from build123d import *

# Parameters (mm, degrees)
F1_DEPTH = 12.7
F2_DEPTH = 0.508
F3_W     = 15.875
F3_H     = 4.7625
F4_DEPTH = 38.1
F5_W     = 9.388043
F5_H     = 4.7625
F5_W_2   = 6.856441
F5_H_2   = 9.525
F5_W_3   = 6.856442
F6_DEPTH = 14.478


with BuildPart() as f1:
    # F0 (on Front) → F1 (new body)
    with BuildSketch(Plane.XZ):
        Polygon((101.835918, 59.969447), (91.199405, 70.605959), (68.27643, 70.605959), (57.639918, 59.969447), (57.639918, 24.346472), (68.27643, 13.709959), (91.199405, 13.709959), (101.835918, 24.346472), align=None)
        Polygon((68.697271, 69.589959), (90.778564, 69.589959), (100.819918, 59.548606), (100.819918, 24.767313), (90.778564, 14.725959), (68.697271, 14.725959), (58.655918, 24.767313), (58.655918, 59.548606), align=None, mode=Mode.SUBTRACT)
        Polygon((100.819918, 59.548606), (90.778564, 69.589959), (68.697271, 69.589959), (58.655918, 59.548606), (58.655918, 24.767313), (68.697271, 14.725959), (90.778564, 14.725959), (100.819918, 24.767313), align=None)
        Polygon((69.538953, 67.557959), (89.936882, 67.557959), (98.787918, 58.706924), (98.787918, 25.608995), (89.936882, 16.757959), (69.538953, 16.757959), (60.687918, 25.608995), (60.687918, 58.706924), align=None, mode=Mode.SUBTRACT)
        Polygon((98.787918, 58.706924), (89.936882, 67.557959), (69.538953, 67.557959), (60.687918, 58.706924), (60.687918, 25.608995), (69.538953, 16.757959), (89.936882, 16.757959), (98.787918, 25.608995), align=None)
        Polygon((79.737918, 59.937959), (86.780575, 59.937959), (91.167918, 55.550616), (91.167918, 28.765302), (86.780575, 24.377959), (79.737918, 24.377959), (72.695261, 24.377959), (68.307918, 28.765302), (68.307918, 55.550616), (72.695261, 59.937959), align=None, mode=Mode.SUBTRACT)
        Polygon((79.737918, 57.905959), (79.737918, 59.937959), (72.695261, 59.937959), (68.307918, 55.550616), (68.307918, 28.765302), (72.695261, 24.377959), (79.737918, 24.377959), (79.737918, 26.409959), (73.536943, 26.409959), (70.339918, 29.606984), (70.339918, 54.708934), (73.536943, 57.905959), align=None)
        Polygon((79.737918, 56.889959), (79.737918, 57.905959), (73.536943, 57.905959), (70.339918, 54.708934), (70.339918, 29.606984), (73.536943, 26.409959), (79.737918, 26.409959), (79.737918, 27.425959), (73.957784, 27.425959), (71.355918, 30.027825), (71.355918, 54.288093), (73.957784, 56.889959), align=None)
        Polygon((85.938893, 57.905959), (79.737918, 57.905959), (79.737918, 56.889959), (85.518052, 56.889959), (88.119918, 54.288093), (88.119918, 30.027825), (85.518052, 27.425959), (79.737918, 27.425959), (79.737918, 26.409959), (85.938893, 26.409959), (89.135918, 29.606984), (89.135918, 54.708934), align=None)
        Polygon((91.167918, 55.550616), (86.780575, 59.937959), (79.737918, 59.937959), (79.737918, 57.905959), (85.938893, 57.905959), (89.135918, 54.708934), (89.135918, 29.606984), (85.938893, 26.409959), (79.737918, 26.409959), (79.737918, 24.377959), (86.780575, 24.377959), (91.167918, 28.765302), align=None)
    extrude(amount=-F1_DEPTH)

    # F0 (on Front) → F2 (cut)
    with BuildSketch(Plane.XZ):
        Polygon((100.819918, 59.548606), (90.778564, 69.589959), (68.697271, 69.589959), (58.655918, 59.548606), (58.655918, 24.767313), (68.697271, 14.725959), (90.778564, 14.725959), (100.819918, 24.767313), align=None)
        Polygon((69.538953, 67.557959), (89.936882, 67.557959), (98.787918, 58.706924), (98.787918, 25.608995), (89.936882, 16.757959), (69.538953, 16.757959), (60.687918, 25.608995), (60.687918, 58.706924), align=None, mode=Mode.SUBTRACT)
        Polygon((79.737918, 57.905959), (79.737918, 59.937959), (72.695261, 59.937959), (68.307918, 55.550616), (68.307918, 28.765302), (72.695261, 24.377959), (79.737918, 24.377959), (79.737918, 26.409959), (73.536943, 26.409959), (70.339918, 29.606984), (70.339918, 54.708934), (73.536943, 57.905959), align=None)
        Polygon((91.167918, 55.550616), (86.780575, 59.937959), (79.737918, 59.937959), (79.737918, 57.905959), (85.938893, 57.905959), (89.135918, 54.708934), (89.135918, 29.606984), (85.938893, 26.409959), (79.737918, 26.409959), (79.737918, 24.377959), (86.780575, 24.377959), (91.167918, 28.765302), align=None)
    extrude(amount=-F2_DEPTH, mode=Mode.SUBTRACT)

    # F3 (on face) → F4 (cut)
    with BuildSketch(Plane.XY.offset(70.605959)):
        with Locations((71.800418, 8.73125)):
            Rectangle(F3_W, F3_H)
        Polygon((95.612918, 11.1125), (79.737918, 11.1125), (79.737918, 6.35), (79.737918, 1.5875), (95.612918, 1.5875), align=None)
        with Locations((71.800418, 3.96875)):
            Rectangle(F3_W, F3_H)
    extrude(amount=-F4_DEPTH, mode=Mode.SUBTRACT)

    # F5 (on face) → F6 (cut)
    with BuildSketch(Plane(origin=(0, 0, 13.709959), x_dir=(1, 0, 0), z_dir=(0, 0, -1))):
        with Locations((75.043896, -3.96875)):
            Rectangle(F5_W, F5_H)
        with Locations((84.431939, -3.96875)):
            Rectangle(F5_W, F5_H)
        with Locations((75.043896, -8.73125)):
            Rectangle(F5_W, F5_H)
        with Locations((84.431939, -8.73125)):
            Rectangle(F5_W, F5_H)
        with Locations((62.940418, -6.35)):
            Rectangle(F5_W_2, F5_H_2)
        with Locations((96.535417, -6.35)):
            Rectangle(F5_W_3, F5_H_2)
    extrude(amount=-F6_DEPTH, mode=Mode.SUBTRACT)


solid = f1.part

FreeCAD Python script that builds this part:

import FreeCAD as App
import Part
import Sketcher

V = App.Vector
Q = App.Units.Quantity

doc = App.newDocument("Part")
body = doc.addObject("PartDesign::Body", "Body")

sketch1 = body.newObject("Sketcher::SketchObject", "Sketch")
sketch1.AttachmentSupport = (doc.getObject("XZ_Plane"), [""])
sketch1.MapMode = "FlatFace"
sketch1.addGeometry(Part.LineSegment(V(101.8, 60, 0), V(91.2, 70.6, 0)), False)
sketch1.addGeometry(Part.LineSegment(V(91.2, 70.6, 0), V(68.3, 70.6, 0)), False)
sketch1.addGeometry(Part.LineSegment(V(68.3, 70.6, 0), V(57.6, 60, 0)), False)
sketch1.addGeometry(Part.LineSegment(V(57.6, 60, 0), V(57.6, 24.3, 0)), False)
sketch1.addGeometry(Part.LineSegment(V(57.6, 24.3, 0), V(68.3, 13.7, 0)), False)
sketch1.addGeometry(Part.LineSegment(V(68.3, 13.7, 0), V(91.2, 13.7, 0)), False)
sketch1.addGeometry(Part.LineSegment(V(91.2, 13.7, 0), V(101.8, 24.3, 0)), False)
sketch1.addGeometry(Part.LineSegment(V(101.8, 24.3, 0), V(101.8, 60, 0)), False)
sketch1.addGeometry(Part.LineSegment(V(74, 27.4, 0), V(71.4, 30, 0)), False)
sketch1.addGeometry(Part.LineSegment(V(71.4, 30, 0), V(71.4, 54.3, 0)), False)
sketch1.addGeometry(Part.LineSegment(V(71.4, 54.3, 0), V(74, 56.9, 0)), False)
sketch1.addGeometry(Part.LineSegment(V(74, 56.9, 0), V(85.5, 56.9, 0)), False)
sketch1.addGeometry(Part.LineSegment(V(85.5, 56.9, 0), V(88.1, 54.3, 0)), False)
sketch1.addGeometry(Part.LineSegment(V(88.1, 54.3, 0), V(88.1, 30, 0)), False)
sketch1.addGeometry(Part.LineSegment(V(88.1, 30, 0), V(85.5, 27.4, 0)), False)
sketch1.addGeometry(Part.LineSegment(V(85.5, 27.4, 0), V(74, 27.4, 0)), False)
sketch1.addConstraint(Sketcher.Constraint("Coincident", 0, 2, 1, 1))
sketch1.addConstraint(Sketcher.Constraint("Coincident", 1, 2, 2, 1))
sketch1.addConstraint(Sketcher.Constraint("Coincident", 2, 2, 3, 1))
sketch1.addConstraint(Sketcher.Constraint("Coincident", 3, 2, 4, 1))
sketch1.addConstraint(Sketcher.Constraint("Coincident", 4, 2, 5, 1))
sketch1.addConstraint(Sketcher.Constraint("Coincident", 5, 2, 6, 1))
sketch1.addConstraint(Sketcher.Constraint("Coincident", 6, 2, 7, 1))
sketch1.addConstraint(Sketcher.Constraint("Coincident", 7, 2, 0, 1))
sketch1.addConstraint(Sketcher.Constraint("Coincident", 8, 2, 9, 1))
sketch1.addConstraint(Sketcher.Constraint("Coincident", 9, 2, 10, 1))
sketch1.addConstraint(Sketcher.Constraint("Coincident", 10, 2, 11, 1))
sketch1.addConstraint(Sketcher.Constraint("Coincident", 11, 2, 12, 1))
sketch1.addConstraint(Sketcher.Constraint("Coincident", 12, 2, 13, 1))
sketch1.addConstraint(Sketcher.Constraint("Coincident", 13, 2, 14, 1))
sketch1.addConstraint(Sketcher.Constraint("Coincident", 14, 2, 15, 1))
sketch1.addConstraint(Sketcher.Constraint("Coincident", 15, 2, 8, 1))
sketch1.addConstraint(Sketcher.Constraint("Horizontal", 1))
sketch1.addConstraint(Sketcher.Constraint("Vertical", 3))
sketch1.addConstraint(Sketcher.Constraint("Horizontal", 5))
sketch1.addConstraint(Sketcher.Constraint("Vertical", 7))
sketch1.addConstraint(Sketcher.Constraint("Vertical", 9))
sketch1.addConstraint(Sketcher.Constraint("Horizontal", 11))
sketch1.addConstraint(Sketcher.Constraint("Vertical", 13))
sketch1.addConstraint(Sketcher.Constraint("Horizontal", 15))
sketch1.addConstraint(Sketcher.Constraint("Perpendicular", 0, 2))
sketch1.addConstraint(Sketcher.Constraint("Perpendicular", 2, 4))
sketch1.addConstraint(Sketcher.Constraint("Perpendicular", 4, 6))
sketch1.addConstraint(Sketcher.Constraint("Perpendicular", 6, 8))
sketch1.addConstraint(Sketcher.Constraint("Perpendicular", 8, 10))
sketch1.addConstraint(Sketcher.Constraint("Perpendicular", 10, 12))
sketch1.addConstraint(Sketcher.Constraint("Perpendicular", 12, 14))
sketch1.addConstraint(Sketcher.Constraint("Horizontal", 3, 2, 6, 2))
sketch1.addConstraint(Sketcher.Constraint("Horizontal", 2, 2, 7, 2))
sketch1.addConstraint(Sketcher.Constraint("Horizontal", 9, 2, 12, 2))
sketch1.addConstraint(Sketcher.Constraint("Horizontal", 8, 2, 13, 2))
sketch1.addConstraint(Sketcher.Constraint("Vertical", 1, 2, 4, 2))
sketch1.addConstraint(Sketcher.Constraint("Vertical", 0, 2, 5, 2))
sketch1.addConstraint(Sketcher.Constraint("Vertical", 11, 2, 14, 2))
sketch1.addConstraint(Sketcher.Constraint("DistanceX", 8, 2, 6, 2, Q("1.2 in")))
sketch1.addConstraint(Sketcher.Constraint("DistanceY", 4, 2, 1, 2, Q("2.24 in")))
sketch1.addConstraint(Sketcher.Constraint("DistanceX", 3, 2, 6, 2, Q("1.74 in")))
sketch1.addConstraint(Sketcher.Constraint("DistanceY", 10, 2, 1, 2, Q("0.54 in")))
sketch1.addConstraint(Sketcher.Constraint("DistanceX", 12, 2, 7, 2, Q("0.54 in")))
sketch1.addConstraint(Sketcher.Constraint("DistanceY", 5, 2, 14, 2, Q("0.54 in")))
sketch1.addConstraint(Sketcher.Constraint("Distance", 0, 15.0423))
sketch1.addConstraint(Sketcher.Constraint("DistanceY", 9, 1, 9, 2, 24.260268))
sketch1.addConstraint(Sketcher.Constraint("DistanceY", -1, 1, 0, 2, 70.605959))
sketch1.addConstraint(Sketcher.Constraint("DistanceX", -1, 1, 1, 2, 68.27643))
pad1 = body.newObject("PartDesign::Pad", "Pad")
pad1.Profile = sketch1
pad1.Length = Q("0.5 in")
pad1.Reversed = True

sketch2 = body.newObject("Sketcher::SketchObject", "Sketch001")
sketch2.AttachmentSupport = (doc.getObject("XZ_Plane"), [""])
sketch2.MapMode = "FlatFace"
sketch2.addGeometry(Part.LineSegment(V(100.8, 59.5, 0), V(90.8, 69.6, 0)), False)
sketch2.addGeometry(Part.LineSegment(V(90.8, 69.6, 0), V(68.7, 69.6, 0)), False)
sketch2.addGeometry(Part.LineSegment(V(68.7, 69.6, 0), V(58.7, 59.5, 0)), False)
sketch2.addGeometry(Part.LineSegment(V(58.7, 59.5, 0), V(58.7, 24.8, 0)), False)
sketch2.addGeometry(Part.LineSegment(V(58.7, 24.8, 0), V(68.7, 14.7, 0)), False)
sketch2.addGeometry(Part.LineSegment(V(68.7, 14.7, 0), V(90.8, 14.7, 0)), False)
sketch2.addGeometry(Part.LineSegment(V(90.8, 14.7, 0), V(100.8, 24.8, 0)), False)
sketch2.addGeometry(Part.LineSegment(V(100.8, 24.8, 0), V(100.8, 59.5, 0)), False)
sketch2.addGeometry(Part.LineSegment(V(60.7, 58.7, 0), V(69.5, 67.6, 0)), False)
sketch2.addGeometry(Part.LineSegment(V(69.5, 67.6, 0), V(89.9, 67.6, 0)), False)
sketch2.addGeometry(Part.LineSegment(V(89.9, 67.6, 0), V(98.8, 58.7, 0)), False)
sketch2.addGeometry(Part.LineSegment(V(98.8, 58.7, 0), V(98.8, 25.6, 0)), False)
sketch2.addGeometry(Part.LineSegment(V(98.8, 25.6, 0), V(89.9, 16.8, 0)), False)
sketch2.addGeometry(Part.LineSegment(V(89.9, 16.8, 0), V(69.5, 16.8, 0)), False)
sketch2.addGeometry(Part.LineSegment(V(69.5, 16.8, 0), V(60.7, 25.6, 0)), False)
sketch2.addGeometry(Part.LineSegment(V(60.7, 25.6, 0), V(60.7, 58.7, 0)), False)
sketch2.addGeometry(Part.LineSegment(V(72.7, 59.9, 0), V(68.3, 55.6, 0)), False)
sketch2.addGeometry(Part.LineSegment(V(68.3, 55.6, 0), V(68.3, 28.8, 0)), False)
sketch2.addGeometry(Part.LineSegment(V(68.3, 28.8, 0), V(72.7, 24.4, 0)), False)
sketch2.addGeometry(Part.LineSegment(V(72.7, 24.4, 0), V(86.8, 24.4, 0)), False)
sketch2.addGeometry(Part.LineSegment(V(86.8, 24.4, 0), V(91.2, 28.8, 0)), False)
sketch2.addGeometry(Part.LineSegment(V(91.2, 28.8, 0), V(91.2, 55.6, 0)), False)
sketch2.addGeometry(Part.LineSegment(V(91.2, 55.6, 0), V(86.8, 59.9, 0)), False)
sketch2.addGeometry(Part.LineSegment(V(86.8, 59.9, 0), V(72.7, 59.9, 0)), False)
sketch2.addGeometry(Part.LineSegment(V(73.5, 26.4, 0), V(70.3, 29.6, 0)), False)
sketch2.addGeometry(Part.LineSegment(V(70.3, 29.6, 0), V(70.3, 54.7, 0)), False)
sketch2.addGeometry(Part.LineSegment(V(70.3, 54.7, 0), V(73.5, 57.9, 0)), False)
sketch2.addGeometry(Part.LineSegment(V(73.5, 57.9, 0), V(85.9, 57.9, 0)), False)
sketch2.addGeometry(Part.LineSegment(V(85.9, 57.9, 0), V(89.1, 54.7, 0)), False)
sketch2.addGeometry(Part.LineSegment(V(89.1, 54.7, 0), V(89.1, 29.6, 0)), False)
sketch2.addGeometry(Part.LineSegment(V(89.1, 29.6, 0), V(85.9, 26.4, 0)), False)
sketch2.addGeometry(Part.LineSegment(V(85.9, 26.4, 0), V(73.5, 26.4, 0)), False)
sketch2.addConstraint(Sketcher.Constraint("Coincident", 0, 2, 1, 1))
sketch2.addConstraint(Sketcher.Constraint("Coincident", 1, 2, 2, 1))
sketch2.addConstraint(Sketcher.Constraint("Coincident", 2, 2, 3, 1))
sketch2.addConstraint(Sketcher.Constraint("Coincident", 3, 2, 4, 1))
sketch2.addConstraint(Sketcher.Constraint("Coincident", 4, 2, 5, 1))
sketch2.addConstraint(Sketcher.Constraint("Coincident", 5, 2, 6, 1))
sketch2.addConstraint(Sketcher.Constraint("Coincident", 6, 2, 7, 1))
sketch2.addConstraint(Sketcher.Constraint("Coincident", 7, 2, 0, 1))
sketch2.addConstraint(Sketcher.Constraint("Coincident", 8, 2, 9, 1))
sketch2.addConstraint(Sketcher.Constraint("Coincident", 9, 2, 10, 1))
sketch2.addConstraint(Sketcher.Constraint("Coincident", 10, 2, 11, 1))
sketch2.addConstraint(Sketcher.Constraint("Coincident", 11, 2, 12, 1))
sketch2.addConstraint(Sketcher.Constraint("Coincident", 12, 2, 13, 1))
sketch2.addConstraint(Sketcher.Constraint("Coincident", 13, 2, 14, 1))
sketch2.addConstraint(Sketcher.Constraint("Coincident", 14, 2, 15, 1))
sketch2.addConstraint(Sketcher.Constraint("Coincident", 15, 2, 8, 1))
sketch2.addConstraint(Sketcher.Constraint("Coincident", 16, 2, 17, 1))
sketch2.addConstraint(Sketcher.Constraint("Coincident", 17, 2, 18, 1))
sketch2.addConstraint(Sketcher.Constraint("Coincident", 18, 2, 19, 1))
sketch2.addConstraint(Sketcher.Constraint("Coincident", 19, 2, 20, 1))
sketch2.addConstraint(Sketcher.Constraint("Coincident", 20, 2, 21, 1))
sketch2.addConstraint(Sketcher.Constraint("Coincident", 21, 2, 22, 1))
sketch2.addConstraint(Sketcher.Constraint("Coincident", 22, 2, 23, 1))
sketch2.addConstraint(Sketcher.Constraint("Coincident", 23, 2, 16, 1))
sketch2.addConstraint(Sketcher.Constraint("Coincident", 24, 2, 25, 1))
sketch2.addConstraint(Sketcher.Constraint("Coincident", 25, 2, 26, 1))
sketch2.addConstraint(Sketcher.Constraint("Coincident", 26, 2, 27, 1))
sketch2.addConstraint(Sketcher.Constraint("Coincident", 27, 2, 28, 1))
sketch2.addConstraint(Sketcher.Constraint("Coincident", 28, 2, 29, 1))
sketch2.addConstraint(Sketcher.Constraint("Coincident", 29, 2, 30, 1))
sketch2.addConstraint(Sketcher.Constraint("Coincident", 30, 2, 31, 1))
sketch2.addConstraint(Sketcher.Constraint("Coincident", 31, 2, 24, 1))
sketch2.addConstraint(Sketcher.Constraint("Horizontal", 1))
sketch2.addConstraint(Sketcher.Constraint("Vertical", 3))
sketch2.addConstraint(Sketcher.Constraint("Horizontal", 5))
sketch2.addConstraint(Sketcher.Constraint("Vertical", 7))
sketch2.addConstraint(Sketcher.Constraint("Horizontal", 9))
sketch2.addConstraint(Sketcher.Constraint("Vertical", 11))
sketch2.addConstraint(Sketcher.Constraint("Horizontal", 13))
sketch2.addConstraint(Sketcher.Constraint("Vertical", 15))
sketch2.addConstraint(Sketcher.Constraint("Vertical", 17))
sketch2.addConstraint(Sketcher.Constraint("Horizontal", 19))
sketch2.addConstraint(Sketcher.Constraint("Vertical", 21))
sketch2.addConstraint(Sketcher.Constraint("Horizontal", 23))
sketch2.addConstraint(Sketcher.Constraint("Vertical", 25))
sketch2.addConstraint(Sketcher.Constraint("Horizontal", 27))
sketch2.addConstraint(Sketcher.Constraint("Vertical", 29))
sketch2.addConstraint(Sketcher.Constraint("Horizontal", 31))
sketch2.addConstraint(Sketcher.Constraint("Perpendicular", 0, 2))
sketch2.addConstraint(Sketcher.Constraint("Perpendicular", 2, 4))
sketch2.addConstraint(Sketcher.Constraint("Perpendicular", 4, 6))
sketch2.addConstraint(Sketcher.Constraint("Parallel", 6, 8))
sketch2.addConstraint(Sketcher.Constraint("Perpendicular", 8, 10))
sketch2.addConstraint(Sketcher.Constraint("Perpendicular", 10, 12))
sketch2.addConstraint(Sketcher.Constraint("Perpendicular", 12, 14))
sketch2.addConstraint(Sketcher.Constraint("Perpendicular", 14, 16))
sketch2.addConstraint(Sketcher.Constraint("Perpendicular", 16, 18))
sketch2.addConstraint(Sketcher.Constraint("Perpendicular", 18, 20))
sketch2.addConstraint(Sketcher.Constraint("Perpendicular", 20, 22))
sketch2.addConstraint(Sketcher.Constraint("Parallel", 22, 24))
sketch2.addConstraint(Sketcher.Constraint("Perpendicular", 24, 26))
sketch2.addConstraint(Sketcher.Constraint("Perpendicular", 26, 28))
sketch2.addConstraint(Sketcher.Constraint("Perpendicular", 28, 30))
sketch2.addConstraint(Sketcher.Constraint("Horizontal", 3, 2, 6, 2))
sketch2.addConstraint(Sketcher.Constraint("Horizontal", 2, 2, 7, 2))
sketch2.addConstraint(Sketcher.Constraint("Horizontal", 11, 2, 14, 2))
sketch2.addConstraint(Sketcher.Constraint("Horizontal", 10, 2, 15, 2))
sketch2.addConstraint(Sketcher.Constraint("Horizontal", 17, 2, 20, 2))
sketch2.addConstraint(Sketcher.Constraint("Horizontal", 16, 2, 21, 2))
sketch2.addConstraint(Sketcher.Constraint("Horizontal", 25, 2, 28, 2))
sketch2.addConstraint(Sketcher.Constraint("Horizontal", 24, 2, 29, 2))
sketch2.addConstraint(Sketcher.Constraint("Vertical", 1, 2, 4, 2))
sketch2.addConstraint(Sketcher.Constraint("Vertical", 0, 2, 5, 2))
sketch2.addConstraint(Sketcher.Constraint("Vertical", 9, 2, 12, 2))
sketch2.addConstraint(Sketcher.Constraint("Vertical", 19, 2, 22, 2))
sketch2.addConstraint(Sketcher.Constraint("Vertical", 27, 2, 30, 2))
sketch2.addConstraint(Sketcher.Constraint("DistanceX", 15, 2, 16, 2, Q("0.3 in")))
sketch2.addConstraint(Sketcher.Constraint("DistanceY", 13, 2, 18, 2, Q("0.3 in")))
sketch2.addConstraint(Sketcher.Constraint("DistanceX", 20, 2, 11, 2, Q("0.3 in")))
sketch2.addConstraint(Sketcher.Constraint("DistanceX", 16, 2, 21, 2, Q("0.9 in")))
sketch2.addConstraint(Sketcher.Constraint("DistanceY", 22, 2, 9, 2, Q("0.3 in")))
sketch2.addConstraint(Sketcher.Constraint("DistanceY", 4, 2, 1, 2, Q("2.16 in")))
sketch2.addConstraint(Sketcher.Constraint("DistanceX", 3, 2, 6, 2, Q("1.66 in")))
sketch2.addConstraint(Sketcher.Constraint("DistanceY", 8, 2, 1, 2, Q("0.08 in")))
sketch2.addConstraint(Sketcher.Constraint("DistanceX", 10, 2, 7, 2, Q("0.08 in")))
sketch2.addConstraint(Sketcher.Constraint("DistanceY", 5, 2, 12, 2, Q("0.08 in")))
sketch2.addConstraint(Sketcher.Constraint("DistanceX", 17, 2, 24, 2, Q("0.08 in")))
sketch2.addConstraint(Sketcher.Constraint("DistanceY", 26, 2, 23, 2, Q("0.08 in")))
sketch2.addConstraint(Sketcher.Constraint("DistanceX", 28, 2, 21, 2, Q("0.08 in")))
sketch2.addConstraint(Sketcher.Constraint("DistanceY", 19, 2, 30, 2, Q("0.08 in")))
sketch2.addConstraint(Sketcher.Constraint("DistanceX", 9, 1, 9, 2, 20.397929))
sketch2.addConstraint(Sketcher.Constraint("DistanceX", 27, 1, 27, 2, 12.40195))
sketch2.addConstraint(Sketcher.Constraint("DistanceY", -1, 1, 17, 2, 28.765302))
sketch2.addConstraint(Sketcher.Constraint("Distance", 0, 14.200618))
sketch2.addConstraint(Sketcher.Constraint("Distance", 16, 6.20464))
sketch2.addConstraint(Sketcher.Constraint("DistanceX", -1, 1, 1, 2, 68.697271))
pocket1 = body.newObject("PartDesign::Pocket", "Pocket")
pocket1.Profile = sketch2
pocket1.Length = Q("0.02 in")

sketch3 = body.newObject("Sketcher::SketchObject", "Sketch002")
sketch3.AttachmentSupport = (doc.getObject("XY_Plane"), [""])
sketch3.MapMode = "FlatFace"
sketch3.AttachmentOffset = App.Placement(V(0, 0, 70.605959), App.Rotation())
sketch3.addGeometry(Part.LineSegment(V(64, 11, 0), V(64, 2, 0)), False)
sketch3.addGeometry(Part.LineSegment(V(64, 2, 0), V(96, 2, 0)), False)
sketch3.addGeometry(Part.LineSegment(V(96, 2, 0), V(96, 11, 0)), False)
sketch3.addGeometry(Part.LineSegment(V(96, 11, 0), V(64, 11, 0)), False)
sketch3.addConstraint(Sketcher.Constraint("Coincident", 0, 2, 1, 1))
sketch3.addConstraint(Sketcher.Constraint("Coincident", 1, 2, 2, 1))
sketch3.addConstraint(Sketcher.Constraint("Coincident", 2, 2, 3, 1))
sketch3.addConstraint(Sketcher.Constraint("Coincident", 3, 2, 0, 1))
sketch3.addConstraint(Sketcher.Constraint("Vertical", 0))
sketch3.addConstraint(Sketcher.Constraint("Horizontal", 1))
sketch3.addConstraint(Sketcher.Constraint("Vertical", 2))
sketch3.addConstraint(Sketcher.Constraint("Horizontal", 3))
sketch3.addConstraint(Sketcher.Constraint("DistanceX", 1, 1, 1, 2, Q("1.25 in")))
sketch3.addConstraint(Sketcher.Constraint("DistanceY", 0, 2, 0, 1, Q("0.375 in")))
sketch3.addConstraint(Sketcher.Constraint("DistanceY", -1, 1, 0, 2, Q("0.0625 in")))
sketch3.addConstraint(Sketcher.Constraint("DistanceX", -1, 1, 0, 2, 63.862918))
pocket2 = body.newObject("PartDesign::Pocket", "Pocket001")
pocket2.Profile = sketch3
pocket2.Length = Q("1.5 in")

sketch4 = body.newObject("Sketcher::SketchObject", "Sketch003")
sketch4.AttachmentSupport = (doc.getObject("XY_Plane"), [""])
sketch4.MapMode = "FlatFace"
sketch4.AttachmentOffset = App.Placement(V(0, 0, 13.709959), App.Rotation())
sketch4.addGeometry(Part.LineSegment(V(70, 2, 0), V(70, 11, 0)), False)
sketch4.addGeometry(Part.LineSegment(V(70, 11, 0), V(89, 11, 0)), False)
sketch4.addGeometry(Part.LineSegment(V(89, 11, 0), V(89, 2, 0)), False)
sketch4.addGeometry(Part.LineSegment(V(89, 2, 0), V(70, 2, 0)), False)
sketch4.addGeometry(Part.LineSegment(V(60, 2, 0), V(60, 11, 0)), False)
sketch4.addGeometry(Part.LineSegment(V(60, 11, 0), V(66, 11, 0)), False)
sketch4.addGeometry(Part.LineSegment(V(66, 11, 0), V(66, 2, 0)), False)
sketch4.addGeometry(Part.LineSegment(V(66, 2, 0), V(60, 2, 0)), False)
sketch4.addGeometry(Part.LineSegment(V(93, 2, 0), V(93, 11, 0)), False)
sketch4.addGeometry(Part.LineSegment(V(93, 11, 0), V(100, 11, 0)), False)
sketch4.addGeometry(Part.LineSegment(V(100, 11, 0), V(100, 2, 0)), False)
sketch4.addGeometry(Part.LineSegment(V(100, 2, 0), V(93, 2, 0)), False)
sketch4.addConstraint(Sketcher.Constraint("Coincident", 0, 2, 1, 1))
sketch4.addConstraint(Sketcher.Constraint("Coincident", 1, 2, 2, 1))
sketch4.addConstraint(Sketcher.Constraint("Coincident", 2, 2, 3, 1))
sketch4.addConstraint(Sketcher.Constraint("Coincident", 3, 2, 0, 1))
sketch4.addConstraint(Sketcher.Constraint("Coincident", 4, 2, 5, 1))
sketch4.addConstraint(Sketcher.Constraint("Coincident", 5, 2, 6, 1))
sketch4.addConstraint(Sketcher.Constraint("Coincident", 6, 2, 7, 1))
sketch4.addConstraint(Sketcher.Constraint("Coincident", 7, 2, 4, 1))
sketch4.addConstraint(Sketcher.Constraint("Coincident", 8, 2, 9, 1))
sketch4.addConstraint(Sketcher.Constraint("Coincident", 9, 2, 10, 1))
sketch4.addConstraint(Sketcher.Constraint("Coincident", 10, 2, 11, 1))
sketch4.addConstraint(Sketcher.Constraint("Coincident", 11, 2, 8, 1))
sketch4.addConstraint(Sketcher.Constraint("Vertical", 0))
sketch4.addConstraint(Sketcher.Constraint("Horizontal", 1))
sketch4.addConstraint(Sketcher.Constraint("Vertical", 2))
sketch4.addConstraint(Sketcher.Constraint("Horizontal", 3))
sketch4.addConstraint(Sketcher.Constraint("Vertical", 4))
sketch4.addConstraint(Sketcher.Constraint("Horizontal", 5))
sketch4.addConstraint(Sketcher.Constraint("Vertical", 6))
sketch4.addConstraint(Sketcher.Constraint("Horizontal", 7))
sketch4.addConstraint(Sketcher.Constraint("Vertical", 8))
sketch4.addConstraint(Sketcher.Constraint("Horizontal", 9))
sketch4.addConstraint(Sketcher.Constraint("Vertical", 10))
sketch4.addConstraint(Sketcher.Constraint("Horizontal", 11))
sketch4.addConstraint(Sketcher.Constraint("Horizontal", 1, 2, 4, 2))
sketch4.addConstraint(Sketcher.Constraint("Horizontal", 3, 2, 6, 2))
sketch4.addConstraint(Sketcher.Constraint("Horizontal", 5, 2, 8, 2))
sketch4.addConstraint(Sketcher.Constraint("Horizontal", 7, 2, 10, 2))
sketch4.addConstraint(Sketcher.Constraint("Equal", 7, 9))
sketch4.addConstraint(Sketcher.Constraint("DistanceY", 0, 1, 0, 2, Q("0.375 in")))
sketch4.addConstraint(Sketcher.Constraint("DistanceY", -1, 1, 0, 2, Q("0.4375 in")))
sketch4.addConstraint(Sketcher.Constraint("DistanceX", -1, 1, 4, 2, Q("2.3429999 in")))
sketch4.addConstraint(Sketcher.Constraint("DistanceX", 5, 1, 5, 2, 6.856441))
sketch4.addConstraint(Sketcher.Constraint("DistanceX", 1, 1, 1, 2, 18.776086))
sketch4.addConstraint(Sketcher.Constraint("DistanceX", -1, 1, 1, 2, 89.125961))
sketch4.addConstraint(Sketcher.Constraint("DistanceX", -1, 1, 9, 2, 99.963638))
pocket3 = body.newObject("PartDesign::Pocket", "Pocket002")
pocket3.Profile = sketch4
pocket3.Length = Q("0.57 in")
pocket3.Reversed = True

doc.recompute()
